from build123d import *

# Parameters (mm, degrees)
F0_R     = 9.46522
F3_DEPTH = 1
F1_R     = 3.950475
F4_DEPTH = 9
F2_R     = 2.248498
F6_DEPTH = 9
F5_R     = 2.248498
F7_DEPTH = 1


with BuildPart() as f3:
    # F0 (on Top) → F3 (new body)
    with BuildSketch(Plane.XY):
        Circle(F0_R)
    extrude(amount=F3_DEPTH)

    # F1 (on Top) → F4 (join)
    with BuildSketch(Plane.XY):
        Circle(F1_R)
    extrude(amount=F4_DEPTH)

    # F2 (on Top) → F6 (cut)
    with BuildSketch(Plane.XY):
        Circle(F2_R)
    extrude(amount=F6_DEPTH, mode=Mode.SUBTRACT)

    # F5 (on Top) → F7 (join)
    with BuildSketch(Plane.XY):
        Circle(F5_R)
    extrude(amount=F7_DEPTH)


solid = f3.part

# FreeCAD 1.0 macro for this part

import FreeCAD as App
import Part
import Sketcher

V = App.Vector
Q = App.Units.Quantity

doc = App.newDocument("Part")
body = doc.addObject("PartDesign::Body", "Body")

sketch1 = doc.addObject("Sketcher::SketchObject", "Sketch")
body.addObject(sketch1)
sketch1.AttachmentSupport = (doc.XY_Plane, [""])
sketch1.MapMode = "FlatFace"
sketch1.addGeometry(Part.Circle(V(0, 0, 0), V(0, 0, 1), 9), False)
sketch1.addConstraint([
    Sketcher.Constraint("Coincident", 0, 3, -1, 1),
    Sketcher.Constraint("Diameter", 0, Q("18.93044 mm")),
])
pad1 = doc.addObject("PartDesign::Pad", "Pad")
body.addObject(pad1)
pad1.Profile = sketch1
pad1.Length = 1

sketch2 = doc.addObject("Sketcher::SketchObject", "Sketch001")
body.addObject(sketch2)
sketch2.AttachmentSupport = (doc.XY_Plane, [""])
sketch2.MapMode = "FlatFace"
sketch2.addGeometry(Part.Circle(V(0, 0, 0), V(0, 0, 1), 4), False)
sketch2.addConstraint([
    Sketcher.Constraint("Coincident", 0, 3, -1, 1),
    Sketcher.Constraint("Diameter", 0, Q("7.90095 mm")),
])
pad2 = doc.addObject("PartDesign::Pad", "Pad001")
body.addObject(pad2)
pad2.Profile = sketch2
pad2.Length = 9

sketch3 = doc.addObject("Sketcher::SketchObject", "Sketch002")
body.addObject(sketch3)
sketch3.AttachmentSupport = (doc.XY_Plane, [""])
sketch3.MapMode = "FlatFace"
sketch3.addGeometry(Part.Circle(V(0, 0, 0), V(0, 0, 1), 2.2), False)
sketch3.addConstraint([
    Sketcher.Constraint("Coincident", 0, 3, -1, 1),
    Sketcher.Constraint("Diameter", 0, Q("4.496996 mm")),
])
pocket1 = doc.addObject("PartDesign::Pocket", "Pocket")
body.addObject(pocket1)
pocket1.Profile = sketch3
pocket1.Length = 9
pocket1.Reversed = True

sketch4 = doc.addObject("Sketcher::SketchObject", "Sketch003")
body.addObject(sketch4)
sketch4.AttachmentSupport = (doc.XY_Plane, [""])
sketch4.MapMode = "FlatFace"
sketch4.addGeometry(Part.Circle(V(0, 0, 0), V(0, 0, 1), 2.2), False)
sketch4.addConstraint([
    Sketcher.Constraint("Coincident", 0, 3, -1, 1),
    Sketcher.Constraint("Diameter", 0, Q("4.496996 mm")),
])
pad3 = doc.addObject("PartDesign::Pad", "Pad002")
body.addObject(pad3)
pad3.Profile = sketch4
pad3.Length = 1

doc.recompute()
